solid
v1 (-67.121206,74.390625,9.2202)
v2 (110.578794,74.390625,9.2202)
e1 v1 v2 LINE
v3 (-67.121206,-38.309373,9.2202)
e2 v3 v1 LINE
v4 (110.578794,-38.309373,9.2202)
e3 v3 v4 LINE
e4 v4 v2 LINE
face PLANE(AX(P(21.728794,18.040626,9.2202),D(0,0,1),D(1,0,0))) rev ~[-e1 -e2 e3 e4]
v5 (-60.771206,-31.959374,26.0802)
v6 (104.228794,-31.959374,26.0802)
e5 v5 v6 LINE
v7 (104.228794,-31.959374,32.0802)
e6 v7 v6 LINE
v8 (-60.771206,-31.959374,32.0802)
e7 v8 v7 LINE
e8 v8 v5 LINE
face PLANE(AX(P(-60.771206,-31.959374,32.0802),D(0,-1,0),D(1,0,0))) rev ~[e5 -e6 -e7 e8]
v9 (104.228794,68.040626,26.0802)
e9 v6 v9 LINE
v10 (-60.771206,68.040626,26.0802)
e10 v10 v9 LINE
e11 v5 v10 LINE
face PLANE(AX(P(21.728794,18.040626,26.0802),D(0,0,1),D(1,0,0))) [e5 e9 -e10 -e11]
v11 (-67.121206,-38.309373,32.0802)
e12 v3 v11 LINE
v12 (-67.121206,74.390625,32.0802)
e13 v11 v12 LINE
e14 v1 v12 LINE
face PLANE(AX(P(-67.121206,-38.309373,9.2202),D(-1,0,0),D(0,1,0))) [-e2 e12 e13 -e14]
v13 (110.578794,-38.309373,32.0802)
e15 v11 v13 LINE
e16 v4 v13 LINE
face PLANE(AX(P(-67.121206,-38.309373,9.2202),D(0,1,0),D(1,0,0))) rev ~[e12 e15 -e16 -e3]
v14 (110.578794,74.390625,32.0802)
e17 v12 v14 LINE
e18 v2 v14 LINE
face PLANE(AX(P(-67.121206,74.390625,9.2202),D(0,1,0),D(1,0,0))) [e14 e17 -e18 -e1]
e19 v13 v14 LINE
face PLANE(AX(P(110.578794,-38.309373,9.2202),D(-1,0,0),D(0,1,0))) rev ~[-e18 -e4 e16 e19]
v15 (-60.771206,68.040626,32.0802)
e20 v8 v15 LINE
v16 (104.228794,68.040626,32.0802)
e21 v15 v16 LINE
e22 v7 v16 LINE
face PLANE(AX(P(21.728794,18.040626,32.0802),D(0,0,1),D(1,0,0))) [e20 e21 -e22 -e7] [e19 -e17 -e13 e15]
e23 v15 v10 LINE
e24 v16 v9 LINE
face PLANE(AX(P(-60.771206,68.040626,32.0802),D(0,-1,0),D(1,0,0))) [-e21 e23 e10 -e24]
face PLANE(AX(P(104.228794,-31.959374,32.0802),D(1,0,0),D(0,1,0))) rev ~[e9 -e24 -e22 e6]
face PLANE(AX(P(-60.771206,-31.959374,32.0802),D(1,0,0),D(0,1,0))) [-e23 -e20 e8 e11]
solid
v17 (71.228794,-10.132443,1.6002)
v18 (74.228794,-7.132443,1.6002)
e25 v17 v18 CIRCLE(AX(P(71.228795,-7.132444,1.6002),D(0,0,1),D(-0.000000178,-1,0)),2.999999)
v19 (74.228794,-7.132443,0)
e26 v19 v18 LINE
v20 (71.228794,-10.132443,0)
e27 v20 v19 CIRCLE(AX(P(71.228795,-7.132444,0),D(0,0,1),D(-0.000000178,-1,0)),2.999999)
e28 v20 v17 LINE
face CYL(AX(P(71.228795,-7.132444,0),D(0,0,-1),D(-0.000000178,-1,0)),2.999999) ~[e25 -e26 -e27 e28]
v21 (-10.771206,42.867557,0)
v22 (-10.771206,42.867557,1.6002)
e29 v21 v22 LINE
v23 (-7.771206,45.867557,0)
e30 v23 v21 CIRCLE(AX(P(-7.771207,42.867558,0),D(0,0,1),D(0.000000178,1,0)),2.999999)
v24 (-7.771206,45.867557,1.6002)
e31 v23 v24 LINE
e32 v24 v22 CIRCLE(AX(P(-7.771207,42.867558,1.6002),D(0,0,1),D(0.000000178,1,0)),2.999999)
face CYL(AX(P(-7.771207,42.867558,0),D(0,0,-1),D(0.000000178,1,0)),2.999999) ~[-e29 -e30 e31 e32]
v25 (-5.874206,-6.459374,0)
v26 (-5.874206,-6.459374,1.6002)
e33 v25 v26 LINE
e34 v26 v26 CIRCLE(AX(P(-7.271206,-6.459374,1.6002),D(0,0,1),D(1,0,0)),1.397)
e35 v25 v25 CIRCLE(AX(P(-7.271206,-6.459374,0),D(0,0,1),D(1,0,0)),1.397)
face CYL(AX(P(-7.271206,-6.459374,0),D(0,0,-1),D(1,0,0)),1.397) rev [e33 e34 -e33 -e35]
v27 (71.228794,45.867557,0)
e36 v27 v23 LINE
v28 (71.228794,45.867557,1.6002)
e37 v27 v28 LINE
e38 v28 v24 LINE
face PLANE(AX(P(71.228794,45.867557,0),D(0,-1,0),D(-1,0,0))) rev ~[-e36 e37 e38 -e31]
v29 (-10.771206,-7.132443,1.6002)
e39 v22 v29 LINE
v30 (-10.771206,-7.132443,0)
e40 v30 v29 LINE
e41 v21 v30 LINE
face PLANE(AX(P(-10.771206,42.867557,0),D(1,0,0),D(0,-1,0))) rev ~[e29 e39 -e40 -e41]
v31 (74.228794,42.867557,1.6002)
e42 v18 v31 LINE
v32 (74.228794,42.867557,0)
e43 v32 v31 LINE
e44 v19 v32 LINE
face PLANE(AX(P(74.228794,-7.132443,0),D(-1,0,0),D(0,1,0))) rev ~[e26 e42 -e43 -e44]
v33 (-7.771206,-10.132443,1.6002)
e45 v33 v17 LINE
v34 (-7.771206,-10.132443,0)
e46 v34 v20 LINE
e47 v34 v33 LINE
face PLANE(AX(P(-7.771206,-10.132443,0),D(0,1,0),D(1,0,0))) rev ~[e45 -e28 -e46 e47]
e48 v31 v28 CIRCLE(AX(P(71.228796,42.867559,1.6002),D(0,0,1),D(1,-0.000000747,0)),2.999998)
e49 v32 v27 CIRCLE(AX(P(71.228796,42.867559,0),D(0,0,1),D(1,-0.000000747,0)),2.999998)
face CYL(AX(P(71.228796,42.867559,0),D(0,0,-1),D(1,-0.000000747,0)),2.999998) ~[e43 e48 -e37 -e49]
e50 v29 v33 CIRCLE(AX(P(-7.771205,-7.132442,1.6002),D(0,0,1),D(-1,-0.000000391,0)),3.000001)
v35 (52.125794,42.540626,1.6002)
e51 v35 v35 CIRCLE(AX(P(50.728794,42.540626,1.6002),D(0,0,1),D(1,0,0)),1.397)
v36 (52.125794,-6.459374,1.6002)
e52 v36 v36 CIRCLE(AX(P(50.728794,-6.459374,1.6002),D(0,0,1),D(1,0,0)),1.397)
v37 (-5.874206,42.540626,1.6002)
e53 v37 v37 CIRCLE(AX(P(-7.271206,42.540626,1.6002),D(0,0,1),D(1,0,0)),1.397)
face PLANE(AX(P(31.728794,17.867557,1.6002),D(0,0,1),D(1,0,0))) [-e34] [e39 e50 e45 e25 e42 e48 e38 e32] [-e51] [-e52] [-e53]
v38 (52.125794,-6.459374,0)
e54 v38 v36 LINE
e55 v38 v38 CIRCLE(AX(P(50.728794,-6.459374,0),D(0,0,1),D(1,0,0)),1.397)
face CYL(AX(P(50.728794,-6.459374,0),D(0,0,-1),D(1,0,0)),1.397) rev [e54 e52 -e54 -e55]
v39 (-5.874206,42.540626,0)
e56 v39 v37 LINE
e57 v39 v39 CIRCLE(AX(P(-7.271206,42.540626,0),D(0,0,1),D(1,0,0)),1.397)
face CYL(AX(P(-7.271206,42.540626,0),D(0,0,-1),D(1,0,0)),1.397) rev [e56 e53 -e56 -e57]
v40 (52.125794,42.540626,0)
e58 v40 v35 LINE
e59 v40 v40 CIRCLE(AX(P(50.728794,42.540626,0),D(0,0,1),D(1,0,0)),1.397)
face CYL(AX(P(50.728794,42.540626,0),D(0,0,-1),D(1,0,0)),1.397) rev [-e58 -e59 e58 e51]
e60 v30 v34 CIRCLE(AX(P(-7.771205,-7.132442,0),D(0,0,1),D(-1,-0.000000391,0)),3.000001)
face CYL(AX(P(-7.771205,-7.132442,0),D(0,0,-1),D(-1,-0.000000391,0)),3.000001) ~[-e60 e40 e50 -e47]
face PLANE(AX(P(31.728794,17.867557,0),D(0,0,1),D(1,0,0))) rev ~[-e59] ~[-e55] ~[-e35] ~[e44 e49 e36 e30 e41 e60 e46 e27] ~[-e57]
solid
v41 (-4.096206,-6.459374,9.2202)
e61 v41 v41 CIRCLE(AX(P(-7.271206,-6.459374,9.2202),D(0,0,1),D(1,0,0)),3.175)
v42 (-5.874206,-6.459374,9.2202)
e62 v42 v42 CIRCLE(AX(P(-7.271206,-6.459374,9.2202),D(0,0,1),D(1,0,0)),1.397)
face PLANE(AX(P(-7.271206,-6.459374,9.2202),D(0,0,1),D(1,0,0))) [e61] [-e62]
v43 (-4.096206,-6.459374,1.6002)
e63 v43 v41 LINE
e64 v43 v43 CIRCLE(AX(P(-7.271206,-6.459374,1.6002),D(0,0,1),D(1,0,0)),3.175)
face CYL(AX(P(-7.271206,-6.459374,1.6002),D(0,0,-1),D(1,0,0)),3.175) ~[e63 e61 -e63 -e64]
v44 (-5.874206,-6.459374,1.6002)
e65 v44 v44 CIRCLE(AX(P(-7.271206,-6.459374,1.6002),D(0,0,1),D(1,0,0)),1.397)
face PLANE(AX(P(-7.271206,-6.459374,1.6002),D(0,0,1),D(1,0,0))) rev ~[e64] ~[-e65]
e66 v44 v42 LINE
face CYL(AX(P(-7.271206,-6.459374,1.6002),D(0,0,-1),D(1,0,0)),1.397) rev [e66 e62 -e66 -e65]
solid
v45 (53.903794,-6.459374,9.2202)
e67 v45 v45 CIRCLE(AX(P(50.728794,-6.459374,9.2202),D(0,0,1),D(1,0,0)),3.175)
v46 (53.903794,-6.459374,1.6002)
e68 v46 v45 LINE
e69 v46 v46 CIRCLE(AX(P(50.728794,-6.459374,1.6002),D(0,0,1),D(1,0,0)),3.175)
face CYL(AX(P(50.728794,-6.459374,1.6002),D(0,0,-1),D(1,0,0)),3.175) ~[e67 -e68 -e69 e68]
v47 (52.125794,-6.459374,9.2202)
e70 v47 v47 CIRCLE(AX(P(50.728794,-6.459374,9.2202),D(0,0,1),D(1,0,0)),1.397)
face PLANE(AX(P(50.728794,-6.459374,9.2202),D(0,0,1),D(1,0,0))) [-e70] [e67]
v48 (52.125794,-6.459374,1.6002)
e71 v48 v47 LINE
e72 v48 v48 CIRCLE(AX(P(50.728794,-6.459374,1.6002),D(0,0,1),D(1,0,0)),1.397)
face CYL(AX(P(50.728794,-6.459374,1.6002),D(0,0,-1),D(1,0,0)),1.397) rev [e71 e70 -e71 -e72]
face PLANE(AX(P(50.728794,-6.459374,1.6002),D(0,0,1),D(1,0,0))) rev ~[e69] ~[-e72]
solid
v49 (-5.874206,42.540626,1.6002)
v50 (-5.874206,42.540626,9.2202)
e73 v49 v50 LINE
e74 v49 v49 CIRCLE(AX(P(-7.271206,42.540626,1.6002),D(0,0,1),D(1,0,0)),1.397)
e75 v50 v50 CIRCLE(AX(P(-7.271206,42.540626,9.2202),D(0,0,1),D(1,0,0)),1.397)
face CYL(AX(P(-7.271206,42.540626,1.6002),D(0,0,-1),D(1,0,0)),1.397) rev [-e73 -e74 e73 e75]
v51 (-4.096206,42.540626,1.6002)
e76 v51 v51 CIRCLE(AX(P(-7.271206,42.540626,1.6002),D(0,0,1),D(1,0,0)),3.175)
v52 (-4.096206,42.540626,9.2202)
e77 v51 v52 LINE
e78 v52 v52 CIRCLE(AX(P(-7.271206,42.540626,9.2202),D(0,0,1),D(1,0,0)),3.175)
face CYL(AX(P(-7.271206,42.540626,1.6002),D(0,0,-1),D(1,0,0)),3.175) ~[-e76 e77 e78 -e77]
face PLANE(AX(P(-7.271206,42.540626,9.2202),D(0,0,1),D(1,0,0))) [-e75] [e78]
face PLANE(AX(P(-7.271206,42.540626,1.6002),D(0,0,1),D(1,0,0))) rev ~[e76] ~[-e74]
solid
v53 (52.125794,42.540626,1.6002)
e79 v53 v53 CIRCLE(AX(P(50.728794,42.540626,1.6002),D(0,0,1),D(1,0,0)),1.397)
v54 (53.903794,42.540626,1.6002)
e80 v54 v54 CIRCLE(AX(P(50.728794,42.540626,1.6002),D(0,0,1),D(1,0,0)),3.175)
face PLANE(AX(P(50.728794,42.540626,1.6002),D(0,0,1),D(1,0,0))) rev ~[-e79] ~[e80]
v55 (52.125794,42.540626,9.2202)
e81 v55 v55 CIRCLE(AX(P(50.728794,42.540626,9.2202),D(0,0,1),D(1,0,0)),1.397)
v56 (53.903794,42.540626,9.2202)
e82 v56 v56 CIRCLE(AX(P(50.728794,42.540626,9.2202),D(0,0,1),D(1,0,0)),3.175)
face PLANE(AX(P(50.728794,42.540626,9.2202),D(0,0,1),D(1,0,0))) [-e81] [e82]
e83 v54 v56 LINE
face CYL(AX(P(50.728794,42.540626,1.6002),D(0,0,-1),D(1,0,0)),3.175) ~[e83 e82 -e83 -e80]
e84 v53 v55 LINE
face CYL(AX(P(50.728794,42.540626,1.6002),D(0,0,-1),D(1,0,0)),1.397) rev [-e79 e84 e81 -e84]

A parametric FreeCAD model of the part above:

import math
import FreeCAD as App
import Part
import Sketcher
Q = App.Units.Quantity

doc = App.newDocument("Part")
body = doc.addObject("PartDesign::Body", "Body")

# Sketch on XY plane
sketch1 = doc.addObject("Sketcher::SketchObject", "Sketch")
body.addObject(sketch1)
sketch1.AttachmentSupport = (doc.XY_Plane, [""])
sketch1.MapMode = "FlatFace"
sketch1.addGeometry([
    Part.ArcOfCircle(Part.Circle(App.Vector(-7.8, -7.1, 0), App.Vector(0, 0, 1), 3), math.radians(-180), math.radians(-90)),  # 0
    Part.LineSegment(App.Vector(-7.8, -10.1, 0), App.Vector(71.2, -10.1, 0)),  # 1
    Part.ArcOfCircle(Part.Circle(App.Vector(71.2, -7.1, 0), App.Vector(0, 0, 1), 3), math.radians(-90), math.radians(0)),  # 2
    Part.LineSegment(App.Vector(74.2, -7.1, 0), App.Vector(74.2, 42.9, 0)),  # 3
    Part.ArcOfCircle(Part.Circle(App.Vector(71.2, 42.9, 0), App.Vector(0, 0, 1), 3), math.radians(0), math.radians(90)),  # 4
    Part.LineSegment(App.Vector(71.2, 45.9, 0), App.Vector(-7.8, 45.9, 0)),  # 5
    Part.ArcOfCircle(Part.Circle(App.Vector(-7.8, 42.9, 0), App.Vector(0, 0, 1), 3), math.radians(90), math.radians(180)),  # 6
    Part.LineSegment(App.Vector(-10.8, 42.9, 0), App.Vector(-10.8, -7.1, 0)),  # 7
    Part.Circle(App.Vector(-7.3, -6.5, 0), App.Vector(0, 0, 1), 1.4),  # 8
    Part.Circle(App.Vector(50.7, -6.5, 0), App.Vector(0, 0, 1), 1.4),  # 9
    Part.Circle(App.Vector(-7.3, 42.5, 0), App.Vector(0, 0, 1), 1.4),  # 10
    Part.Circle(App.Vector(50.7, 42.5, 0), App.Vector(0, 0, 1), 1.4),  # 11
], False)
sketch1.addConstraint([
    Sketcher.Constraint("Tangent", 0, 2, 1, 1),
    Sketcher.Constraint("Tangent", 1, 2, 2, 1),
    Sketcher.Constraint("Tangent", 2, 2, 3, 1),
    Sketcher.Constraint("Tangent", 3, 2, 4, 1),
    Sketcher.Constraint("Tangent", 4, 2, 5, 1),
    Sketcher.Constraint("Tangent", 5, 2, 6, 1),
    Sketcher.Constraint("Tangent", 6, 2, 7, 1),
    Sketcher.Constraint("Tangent", 7, 2, 0, 1),
    Sketcher.Constraint("Horizontal", 1),
    Sketcher.Constraint("Vertical", 3),
    Sketcher.Constraint("Horizontal", 5),
    Sketcher.Constraint("Vertical", 7),
    Sketcher.Constraint("Equal", 0, 2),
    Sketcher.Constraint("Equal", 2, 4),
    Sketcher.Constraint("Equal", 4, 6),
    Sketcher.Constraint("Equal", 8, 9),
    Sketcher.Constraint("Equal", 9, 10),
    Sketcher.Constraint("Equal", 10, 11),
    Sketcher.Constraint("Horizontal", 8, 3, 9, 3),
    Sketcher.Constraint("Horizontal", 10, 3, 11, 3),
    Sketcher.Constraint("Vertical", 8, 3, 10, 3),
    Sketcher.Constraint("Vertical", 9, 3, 11, 3),
    Sketcher.Constraint("Radius", 0, Q("3.000001 mm")),
    Sketcher.Constraint("DistanceX", 1, 1, 1, 2, Q("79 mm")),
    Sketcher.Constraint("DistanceY", 3, 1, 3, 2, Q("50 mm")),
    Sketcher.Constraint("Diameter", 8, Q("2.794 mm")),
    Sketcher.Constraint("DistanceX", 8, 3, 9, 3, Q("58 mm")),
    Sketcher.Constraint("DistanceY", 8, 3, 10, 3, Q("49 mm")),
    Sketcher.Constraint("DistanceX", 0, 3, 8, 3, Q("0.499999 mm")),
    Sketcher.Constraint("DistanceY", 0, 3, -1, 1, Q("7.132442 mm")),
    Sketcher.Constraint("DistanceY", 8, 3, 6, 3, Q("49.326932 mm")),
    Sketcher.Constraint("DistanceX", 0, 3, -1, 1, Q("7.771205 mm")),
])
pad1 = doc.addObject("PartDesign::Pad", "Pad")
body.addObject(pad1)
pad1.Profile = sketch1
pad1.Length = 1.6002
body2 = doc.addObject("PartDesign::Body", "Body001")

# Sketch on XY plane
sketch2 = doc.addObject("Sketcher::SketchObject", "Sketch001")
body2.addObject(sketch2)
sketch2.AttachmentSupport = (doc.getObject("XY_Plane001"), [""])
sketch2.MapMode = "FlatFace"
sketch2.AttachmentOffset = App.Placement(App.Vector(0, 0, 1.6002), App.Rotation())
sketch2.addGeometry([
    Part.Circle(App.Vector(-7.3, 42.5, 0), App.Vector(0, 0, 1), 3.2),
    Part.Circle(App.Vector(-7.3, 42.5, 0), App.Vector(0, 0, 1), 1.4),
], False)
sketch2.addConstraint([
    Sketcher.Constraint("Coincident", 1, 3, 0, 3),
    Sketcher.Constraint("Diameter", 0, Q("6.35 mm")),
    Sketcher.Constraint("Diameter", 1, Q("2.794 mm")),
    Sketcher.Constraint("DistanceX", 0, 3, -1, 1, Q("7.271206 mm")),
    Sketcher.Constraint("DistanceY", -1, 1, 0, 3, Q("42.540626 mm")),
])
pad2 = doc.addObject("PartDesign::Pad", "Pad001")
body2.addObject(pad2)
pad2.Profile = sketch2
pad2.Length = 7.62
body3 = doc.addObject("PartDesign::Body", "Body002")

# Sketch on XY plane
sketch3 = doc.addObject("Sketcher::SketchObject", "Sketch002")
body3.addObject(sketch3)
sketch3.AttachmentSupport = (doc.getObject("XY_Plane002"), [""])
sketch3.MapMode = "FlatFace"
sketch3.AttachmentOffset = App.Placement(App.Vector(0, 0, 1.6002), App.Rotation())
sketch3.addGeometry([
    Part.Circle(App.Vector(-7.3, -6.5, 0), App.Vector(0, 0, 1), 3.2),
    Part.Circle(App.Vector(-7.3, -6.5, 0), App.Vector(0, 0, 1), 1.4),
], False)
sketch3.addConstraint([
    Sketcher.Constraint("Coincident", 1, 3, 0, 3),
    Sketcher.Constraint("Diameter", 0, Q("6.35 mm")),
    Sketcher.Constraint("Diameter", 1, Q("2.794 mm")),
    Sketcher.Constraint("DistanceX", 0, 3, -1, 1, Q("7.271206 mm")),
    Sketcher.Constraint("DistanceY", 0, 3, -1, 1, Q("6.459374 mm")),
])
pad3 = doc.addObject("PartDesign::Pad", "Pad002")
body3.addObject(pad3)
pad3.Profile = sketch3
pad3.Length = 7.62
body4 = doc.addObject("PartDesign::Body", "Body003")

# Sketch on XY plane
sketch4 = doc.addObject("Sketcher::SketchObject", "Sketch003")
body4.addObject(sketch4)
sketch4.AttachmentSupport = (doc.getObject("XY_Plane003"), [""])
sketch4.MapMode = "FlatFace"
sketch4.AttachmentOffset = App.Placement(App.Vector(0, 0, 1.6002), App.Rotation())
sketch4.addGeometry([
    Part.Circle(App.Vector(50.7, 42.5, 0), App.Vector(0, 0, 1), 3.2),
    Part.Circle(App.Vector(50.7, 42.5, 0), App.Vector(0, 0, 1), 1.4),
], False)
sketch4.addConstraint([
    Sketcher.Constraint("Coincident", 1, 3, 0, 3),
    Sketcher.Constraint("Diameter", 0, Q("6.35 mm")),
    Sketcher.Constraint("Diameter", 1, Q("2.794 mm")),
    Sketcher.Constraint("DistanceX", -1, 1, 0, 3, Q("50.728794 mm")),
    Sketcher.Constraint("DistanceY", -1, 1, 0, 3, Q("42.540626 mm")),
])
pad4 = doc.addObject("PartDesign::Pad", "Pad003")
body4.addObject(pad4)
pad4.Profile = sketch4
pad4.Length = 7.62
body5 = doc.addObject("PartDesign::Body", "Body004")

# Sketch on XY plane
sketch5 = doc.addObject("Sketcher::SketchObject", "Sketch004")
body5.addObject(sketch5)
sketch5.AttachmentSupport = (doc.getObject("XY_Plane004"), [""])
sketch5.MapMode = "FlatFace"
sketch5.AttachmentOffset = App.Placement(App.Vector(0, 0, 1.6002), App.Rotation())
sketch5.addGeometry([
    Part.Circle(App.Vector(50.7, -6.5, 0), App.Vector(0, 0, 1), 3.2),
    Part.Circle(App.Vector(50.7, -6.5, 0), App.Vector(0, 0, 1), 1.4),
], False)
sketch5.addConstraint([
    Sketcher.Constraint("Coincident", 1, 3, 0, 3),
    Sketcher.Constraint("Diameter", 0, Q("6.35 mm")),
    Sketcher.Constraint("Diameter", 1, Q("2.794 mm")),
    Sketcher.Constraint("DistanceX", -1, 1, 0, 3, Q("50.728794 mm")),
    Sketcher.Constraint("DistanceY", 0, 3, -1, 1, Q("6.459374 mm")),
])
pad5 = doc.addObject("PartDesign::Pad", "Pad004")
body5.addObject(pad5)
pad5.Profile = sketch5
pad5.Length = 7.62
body6 = doc.addObject("PartDesign::Body", "Body005")

# Sketch on XY plane
sketch6 = doc.addObject("Sketcher::SketchObject", "Sketch005")
body6.addObject(sketch6)
sketch6.AttachmentSupport = (doc.getObject("XY_Plane005"), [""])
sketch6.MapMode = "FlatFace"
sketch6.AttachmentOffset = App.Placement(App.Vector(0, 0, 9.2202), App.Rotation())
sketch6.addGeometry([
    Part.LineSegment(App.Vector(-67, 74, 0), App.Vector(-67, -38, 0)),
    Part.LineSegment(App.Vector(-67, -38, 0), App.Vector(111, -38, 0)),
    Part.LineSegment(App.Vector(111, -38, 0), App.Vector(111, 74, 0)),
    Part.LineSegment(App.Vector(111, 74, 0), App.Vector(-67, 74, 0)),
], False)
sketch6.addConstraint([
    Sketcher.Constraint("Coincident", 0, 2, 1, 1),
    Sketcher.Constraint("Coincident", 1, 2, 2, 1),
    Sketcher.Constraint("Coincident", 2, 2, 3, 1),
    Sketcher.Constraint("Coincident", 3, 2, 0, 1),
    Sketcher.Constraint("Vertical", 0),
    Sketcher.Constraint("Horizontal", 1),
    Sketcher.Constraint("Vertical", 2),
    Sketcher.Constraint("Horizontal", 3),
    Sketcher.Constraint("DistanceX", 1, 1, 1, 2, Q("177.699999 mm")),
    Sketcher.Constraint("DistanceY", 0, 2, 0, 1, Q("112.699999 mm")),
    Sketcher.Constraint("DistanceX", 0, 2, -1, 1, Q("67.121206 mm")),
    Sketcher.Constraint("DistanceY", 0, 2, -1, 1, Q("38.309373 mm")),
])
pad6 = doc.addObject("PartDesign::Pad", "Pad005")
body6.addObject(pad6)
pad6.Profile = sketch6
pad6.Length = 22.86

# Sketch on XY plane
sketch7 = doc.addObject("Sketcher::SketchObject", "Sketch006")
body6.addObject(sketch7)
sketch7.AttachmentSupport = (doc.getObject("XY_Plane005"), [""])
sketch7.MapMode = "FlatFace"
sketch7.AttachmentOffset = App.Placement(App.Vector(0, 0, 32.0802), App.Rotation())
sketch7.addGeometry([
    Part.LineSegment(App.Vector(-61, 68, 0), App.Vector(-61, -32, 0)),
    Part.LineSegment(App.Vector(-61, -32, 0), App.Vector(104, -32, 0)),
    Part.LineSegment(App.Vector(104, -32, 0), App.Vector(104, 68, 0)),
    Part.LineSegment(App.Vector(104, 68, 0), App.Vector(-61, 68, 0)),
], False)
sketch7.addConstraint([
    Sketcher.Constraint("Coincident", 0, 2, 1, 1),
    Sketcher.Constraint("Coincident", 1, 2, 2, 1),
    Sketcher.Constraint("Coincident", 2, 2, 3, 1),
    Sketcher.Constraint("Coincident", 3, 2, 0, 1),
    Sketcher.Constraint("Vertical", 0),
    Sketcher.Constraint("Horizontal", 1),
    Sketcher.Constraint("Vertical", 2),
    Sketcher.Constraint("Horizontal", 3),
    Sketcher.Constraint("DistanceX", 1, 1, 1, 2, Q("165 mm")),
    Sketcher.Constraint("DistanceY", 0, 2, 0, 1, Q("100 mm")),
    Sketcher.Constraint("DistanceX", 0, 2, -1, 1, Q("60.771206 mm")),
    Sketcher.Constraint("DistanceY", 0, 2, -1, 1, Q("31.959374 mm")),
])
pocket1 = doc.addObject("PartDesign::Pocket", "Pocket")
body6.addObject(pocket1)
pocket1.Profile = sketch7
pocket1.Length = 6

doc.recompute()
